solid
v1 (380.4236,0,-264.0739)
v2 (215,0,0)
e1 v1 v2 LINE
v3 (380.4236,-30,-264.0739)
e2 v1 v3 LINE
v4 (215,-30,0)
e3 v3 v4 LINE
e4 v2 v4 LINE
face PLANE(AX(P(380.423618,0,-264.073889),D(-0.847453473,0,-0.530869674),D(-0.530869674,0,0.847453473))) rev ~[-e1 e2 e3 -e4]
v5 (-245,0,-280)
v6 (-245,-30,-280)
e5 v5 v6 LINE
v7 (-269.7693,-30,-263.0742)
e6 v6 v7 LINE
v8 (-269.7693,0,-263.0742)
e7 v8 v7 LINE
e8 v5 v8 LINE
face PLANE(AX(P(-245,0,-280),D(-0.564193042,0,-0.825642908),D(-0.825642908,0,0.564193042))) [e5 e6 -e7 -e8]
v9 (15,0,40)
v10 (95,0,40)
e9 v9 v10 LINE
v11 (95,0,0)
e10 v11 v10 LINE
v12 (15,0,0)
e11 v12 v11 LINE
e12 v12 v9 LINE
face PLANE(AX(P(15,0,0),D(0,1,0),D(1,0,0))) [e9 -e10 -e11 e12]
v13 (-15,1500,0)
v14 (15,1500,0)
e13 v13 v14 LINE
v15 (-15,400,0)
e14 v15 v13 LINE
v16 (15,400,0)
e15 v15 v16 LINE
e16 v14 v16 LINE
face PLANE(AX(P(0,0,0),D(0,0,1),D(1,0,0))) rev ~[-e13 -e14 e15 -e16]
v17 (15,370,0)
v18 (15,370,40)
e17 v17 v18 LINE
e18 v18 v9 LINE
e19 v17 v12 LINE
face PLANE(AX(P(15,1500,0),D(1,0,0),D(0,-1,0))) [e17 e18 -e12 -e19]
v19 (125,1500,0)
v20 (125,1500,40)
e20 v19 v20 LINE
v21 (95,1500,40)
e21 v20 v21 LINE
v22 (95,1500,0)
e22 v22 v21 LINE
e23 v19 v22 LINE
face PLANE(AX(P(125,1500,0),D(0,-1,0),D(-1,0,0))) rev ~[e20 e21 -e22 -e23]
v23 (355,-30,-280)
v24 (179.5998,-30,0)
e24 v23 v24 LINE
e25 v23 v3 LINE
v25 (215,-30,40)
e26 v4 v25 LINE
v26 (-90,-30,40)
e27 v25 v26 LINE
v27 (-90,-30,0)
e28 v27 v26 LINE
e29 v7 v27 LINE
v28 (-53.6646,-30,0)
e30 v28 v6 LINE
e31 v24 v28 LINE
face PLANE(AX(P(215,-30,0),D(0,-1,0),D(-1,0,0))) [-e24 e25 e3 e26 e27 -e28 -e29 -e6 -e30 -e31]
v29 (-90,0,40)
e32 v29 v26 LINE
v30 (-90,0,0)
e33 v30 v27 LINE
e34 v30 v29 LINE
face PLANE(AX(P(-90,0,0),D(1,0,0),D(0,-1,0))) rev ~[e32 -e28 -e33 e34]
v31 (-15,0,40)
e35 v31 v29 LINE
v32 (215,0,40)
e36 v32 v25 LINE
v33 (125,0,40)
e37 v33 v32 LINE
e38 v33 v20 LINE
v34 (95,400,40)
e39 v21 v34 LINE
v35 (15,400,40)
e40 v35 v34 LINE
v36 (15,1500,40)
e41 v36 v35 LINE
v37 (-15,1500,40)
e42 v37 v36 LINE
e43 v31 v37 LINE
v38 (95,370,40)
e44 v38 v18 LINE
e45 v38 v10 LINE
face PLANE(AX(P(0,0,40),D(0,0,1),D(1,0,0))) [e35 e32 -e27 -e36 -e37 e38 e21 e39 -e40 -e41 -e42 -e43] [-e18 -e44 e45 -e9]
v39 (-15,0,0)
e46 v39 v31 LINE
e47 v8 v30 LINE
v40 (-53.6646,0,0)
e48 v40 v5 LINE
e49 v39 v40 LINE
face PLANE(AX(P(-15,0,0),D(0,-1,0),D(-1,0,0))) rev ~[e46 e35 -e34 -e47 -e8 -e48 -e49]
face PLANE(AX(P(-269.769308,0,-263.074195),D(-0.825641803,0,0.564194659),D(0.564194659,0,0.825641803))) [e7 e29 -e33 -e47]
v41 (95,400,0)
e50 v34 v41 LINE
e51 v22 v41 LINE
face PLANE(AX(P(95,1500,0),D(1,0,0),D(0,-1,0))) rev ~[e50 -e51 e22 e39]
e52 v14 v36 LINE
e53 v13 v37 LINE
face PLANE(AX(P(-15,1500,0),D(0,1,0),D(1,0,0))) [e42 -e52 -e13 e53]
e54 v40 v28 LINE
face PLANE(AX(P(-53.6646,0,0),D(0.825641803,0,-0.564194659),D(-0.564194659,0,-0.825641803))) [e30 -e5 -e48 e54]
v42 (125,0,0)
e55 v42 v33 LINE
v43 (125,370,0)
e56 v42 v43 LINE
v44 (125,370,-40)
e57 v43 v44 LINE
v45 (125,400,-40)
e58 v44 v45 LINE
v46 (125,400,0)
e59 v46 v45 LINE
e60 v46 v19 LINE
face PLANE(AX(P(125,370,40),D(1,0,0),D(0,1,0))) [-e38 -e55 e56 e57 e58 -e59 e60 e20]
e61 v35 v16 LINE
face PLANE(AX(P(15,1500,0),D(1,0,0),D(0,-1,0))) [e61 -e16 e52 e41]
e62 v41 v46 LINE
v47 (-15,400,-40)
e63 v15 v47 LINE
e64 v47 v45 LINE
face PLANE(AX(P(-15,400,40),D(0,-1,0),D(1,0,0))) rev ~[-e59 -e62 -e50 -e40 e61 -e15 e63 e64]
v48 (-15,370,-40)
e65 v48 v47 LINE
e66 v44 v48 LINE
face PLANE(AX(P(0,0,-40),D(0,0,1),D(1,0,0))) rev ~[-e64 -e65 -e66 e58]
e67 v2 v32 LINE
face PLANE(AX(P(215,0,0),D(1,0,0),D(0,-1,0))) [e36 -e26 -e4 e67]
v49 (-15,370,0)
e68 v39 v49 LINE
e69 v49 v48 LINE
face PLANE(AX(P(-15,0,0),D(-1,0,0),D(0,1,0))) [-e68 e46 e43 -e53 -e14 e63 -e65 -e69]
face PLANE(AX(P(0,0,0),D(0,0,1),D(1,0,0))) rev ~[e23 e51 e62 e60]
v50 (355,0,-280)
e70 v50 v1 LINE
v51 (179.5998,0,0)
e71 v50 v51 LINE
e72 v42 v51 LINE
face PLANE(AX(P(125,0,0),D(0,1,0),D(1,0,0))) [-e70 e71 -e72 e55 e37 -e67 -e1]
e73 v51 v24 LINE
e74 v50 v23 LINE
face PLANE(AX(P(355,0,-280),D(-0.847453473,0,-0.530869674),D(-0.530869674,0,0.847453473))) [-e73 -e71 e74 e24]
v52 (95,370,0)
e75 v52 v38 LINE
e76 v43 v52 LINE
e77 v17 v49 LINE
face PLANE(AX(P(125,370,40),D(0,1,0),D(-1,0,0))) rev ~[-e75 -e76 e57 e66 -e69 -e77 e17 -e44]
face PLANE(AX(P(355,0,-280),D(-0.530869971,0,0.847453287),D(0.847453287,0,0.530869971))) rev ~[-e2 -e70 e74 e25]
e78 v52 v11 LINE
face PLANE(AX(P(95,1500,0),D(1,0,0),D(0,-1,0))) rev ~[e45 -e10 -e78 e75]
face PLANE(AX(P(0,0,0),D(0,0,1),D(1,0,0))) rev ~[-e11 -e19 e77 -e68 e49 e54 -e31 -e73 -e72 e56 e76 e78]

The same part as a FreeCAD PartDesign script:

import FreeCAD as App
import Part
import Sketcher
from FreeCAD import Vector
Q = App.Units.Quantity


def add_polygon(sketch, points):
    """Adds a closed chain of lines whose ends are joined by coincident constraints."""
    first, n = sketch.GeometryCount, len(points)
    for a, b in zip(points, points[1:] + points[:1]):
        sketch.addGeometry(Part.LineSegment(App.Vector(*a, 0), App.Vector(*b, 0)), False)
    for i in range(n):
        sketch.addConstraint(Sketcher.Constraint("Coincident", first + i, 2, first + (i + 1) % n, 1))

doc = App.newDocument("Part")
params = doc.addObject("Spreadsheet::Sheet", "Params")
for row, (alias, value) in enumerate([
    ("sketch1_width", "90 mm"),
    ("sketch1_width2", "30 mm"),
    ("sketch1_height", "1500 mm"),
    ("pad1_length", "40 mm"),
    ("sketch2_length", "30 mm"),
    ("pad2_length", "30 mm"),
    ("sketch3_height", "30 mm"),
    ("sketch3_width", "140 mm"),
    ("pad3_length", "80 mm"),
], start=1):
    params.set(f"A{row}", alias)
    params.set(f"B{row}", "=" + value)
    params.setAlias(f"B{row}", alias)

body = doc.addObject("PartDesign::Body", "Body")

# Sketch on XY plane
sketch1 = doc.addObject("Sketcher::SketchObject", "Sketch")
body.addObject(sketch1)
sketch1.AttachmentSupport = (doc.XY_Plane, [""])
sketch1.MapMode = "FlatFace"
add_polygon(sketch1, [(-15, 1500), (-15, 0), (-90, 0), (-90, -30), (215, -30), (215, 0), (125, 0), (125, 1500), (95, 1500), (95, 0), (15, 0), (15, 1500)])  # lines 0-11
sketch1.addConstraint([
    Sketcher.Constraint("Vertical", 0),
    Sketcher.Constraint("Horizontal", 1),
    Sketcher.Constraint("Vertical", 2),
    Sketcher.Constraint("Horizontal", 3),
    Sketcher.Constraint("Vertical", 4),
    Sketcher.Constraint("Horizontal", 5),
    Sketcher.Constraint("Vertical", 6),
    Sketcher.Constraint("Horizontal", 7),
    Sketcher.Constraint("Vertical", 8),
    Sketcher.Constraint("Horizontal", 9),
    Sketcher.Constraint("Vertical", 10),
    Sketcher.Constraint("Horizontal", 11),
    Sketcher.Constraint("Symmetric", 0, 2, 9, 2, -1, 1),
    Sketcher.Constraint("PointOnObject", 0, 2, -1),
    Sketcher.Constraint("PointOnObject", 4, 2, -1),
    Sketcher.Constraint("Horizontal", 7, 2, 10, 2),
    Sketcher.Constraint("Equal", 7, 11),
    Sketcher.Constraint("Equal", 11, 2),
    Sketcher.Constraint("DistanceX", 5, 2, 5, 1, Q("90 mm")),
    Sketcher.Constraint("DistanceX", 7, 2, 7, 1, Q("30 mm")),
    Sketcher.Constraint("DistanceY", 0, 2, 0, 1, Q("1500 mm")),
    Sketcher.Constraint("DistanceX", 1, 2, -1, 1, Q("90 mm")),
    Sketcher.Constraint("DistanceX", 0, 2, 7, 2, Q("110 mm")),
])
sketch1.setExpression("Constraints[30]", "Params.sketch1_width")
sketch1.setExpression("Constraints[31]", "Params.sketch1_width2")
sketch1.setExpression("Constraints[32]", "Params.sketch1_height")
pad1 = doc.addObject("PartDesign::Pad", "Pad")
body.addObject(pad1)
pad1.Profile = sketch1
pad1.setExpression("Length", "Params.pad1_length")

# Sketch on XZ plane
sketch2 = doc.addObject("Sketcher::SketchObject", "Sketch001")
body.addObject(sketch2)
sketch2.AttachmentSupport = (doc.XZ_Plane, [""])
sketch2.MapMode = "FlatFace"
add_polygon(sketch2, [(-245, -280), (-269.769308, -263.074195), (-90, 0), (-53.6646, 0)])  # lines 0-3
add_polygon(sketch2, [(380.4236, -264.0739), (355, -280), (179.5998, 0), (215, 0)])  # lines 4-7
sketch2.addConstraint([
    Sketcher.Constraint("Horizontal", 2),
    Sketcher.Constraint("Horizontal", 6),
    Sketcher.Constraint("PointOnObject", 1, 2, -1),
    Sketcher.Constraint("PointOnObject", 5, 2, -1),
    Sketcher.Constraint("Perpendicular", 0, 1),
    Sketcher.Constraint("Parallel", 1, 3),
    Sketcher.Constraint("Perpendicular", 4, 5),
    Sketcher.Constraint("Parallel", 5, 7),
    Sketcher.Constraint("Horizontal", 3, 2, 4, 2),
    Sketcher.Constraint("Equal", 0, 4),
    Sketcher.Constraint("Distance", 0, Q("30 mm")),
    Sketcher.Constraint("DistanceX", 3, 2, 4, 2, Q("600 mm")),
    Sketcher.Constraint("DistanceX", 1, 2, -1, 1, Q("90 mm")),
    Sketcher.Constraint("DistanceX", 3, 2, -1, 1, Q("245 mm")),
    Sketcher.Constraint("DistanceY", 3, 2, -1, 1, Q("280 mm")),
    Sketcher.Constraint("DistanceX", -1, 1, 6, 2, Q("215 mm")),
])
sketch2.setExpression("Constraints[18]", "Params.sketch2_length")
pad2 = doc.addObject("PartDesign::Pad", "Pad001")
body.addObject(pad2)
pad2.Profile = sketch2
pad2.setExpression("Length", "Params.pad2_length")

# Sketch on XY plane
sketch3 = doc.addObject("Sketcher::SketchObject", "Sketch002")
body.addObject(sketch3)
sketch3.AttachmentSupport = (doc.XY_Plane, [""])
sketch3.MapMode = "FlatFace"
sketch3.AttachmentOffset = App.Placement(Vector(0, 0, 40), App.Rotation())
add_polygon(sketch3, [(-15, 400), (-15, 370), (125, 370), (125, 400)])  # lines 0-3
sketch3.addConstraint([
    Sketcher.Constraint("Vertical", 0),
    Sketcher.Constraint("Horizontal", 1),
    Sketcher.Constraint("Vertical", 2),
    Sketcher.Constraint("Horizontal", 3),
    Sketcher.Constraint("DistanceY", 0, 2, 0, 1, Q("30 mm")),
    Sketcher.Constraint("DistanceY", -1, 1, 2, 2, Q("400 mm")),
    Sketcher.Constraint("DistanceX", 1, 1, 1, 2, Q("140 mm")),
    Sketcher.Constraint("DistanceX", 0, 2, -1, 1, Q("15 mm")),
])
sketch3.setExpression("Constraints[8]", "Params.sketch3_height")
sketch3.setExpression("Constraints[10]", "Params.sketch3_width")
pad3 = doc.addObject("PartDesign::Pad", "Pad002")
body.addObject(pad3)
pad3.Profile = sketch3
pad3.setExpression("Length", "Params.pad3_length")
pad3.Reversed = True

doc.recompute()
